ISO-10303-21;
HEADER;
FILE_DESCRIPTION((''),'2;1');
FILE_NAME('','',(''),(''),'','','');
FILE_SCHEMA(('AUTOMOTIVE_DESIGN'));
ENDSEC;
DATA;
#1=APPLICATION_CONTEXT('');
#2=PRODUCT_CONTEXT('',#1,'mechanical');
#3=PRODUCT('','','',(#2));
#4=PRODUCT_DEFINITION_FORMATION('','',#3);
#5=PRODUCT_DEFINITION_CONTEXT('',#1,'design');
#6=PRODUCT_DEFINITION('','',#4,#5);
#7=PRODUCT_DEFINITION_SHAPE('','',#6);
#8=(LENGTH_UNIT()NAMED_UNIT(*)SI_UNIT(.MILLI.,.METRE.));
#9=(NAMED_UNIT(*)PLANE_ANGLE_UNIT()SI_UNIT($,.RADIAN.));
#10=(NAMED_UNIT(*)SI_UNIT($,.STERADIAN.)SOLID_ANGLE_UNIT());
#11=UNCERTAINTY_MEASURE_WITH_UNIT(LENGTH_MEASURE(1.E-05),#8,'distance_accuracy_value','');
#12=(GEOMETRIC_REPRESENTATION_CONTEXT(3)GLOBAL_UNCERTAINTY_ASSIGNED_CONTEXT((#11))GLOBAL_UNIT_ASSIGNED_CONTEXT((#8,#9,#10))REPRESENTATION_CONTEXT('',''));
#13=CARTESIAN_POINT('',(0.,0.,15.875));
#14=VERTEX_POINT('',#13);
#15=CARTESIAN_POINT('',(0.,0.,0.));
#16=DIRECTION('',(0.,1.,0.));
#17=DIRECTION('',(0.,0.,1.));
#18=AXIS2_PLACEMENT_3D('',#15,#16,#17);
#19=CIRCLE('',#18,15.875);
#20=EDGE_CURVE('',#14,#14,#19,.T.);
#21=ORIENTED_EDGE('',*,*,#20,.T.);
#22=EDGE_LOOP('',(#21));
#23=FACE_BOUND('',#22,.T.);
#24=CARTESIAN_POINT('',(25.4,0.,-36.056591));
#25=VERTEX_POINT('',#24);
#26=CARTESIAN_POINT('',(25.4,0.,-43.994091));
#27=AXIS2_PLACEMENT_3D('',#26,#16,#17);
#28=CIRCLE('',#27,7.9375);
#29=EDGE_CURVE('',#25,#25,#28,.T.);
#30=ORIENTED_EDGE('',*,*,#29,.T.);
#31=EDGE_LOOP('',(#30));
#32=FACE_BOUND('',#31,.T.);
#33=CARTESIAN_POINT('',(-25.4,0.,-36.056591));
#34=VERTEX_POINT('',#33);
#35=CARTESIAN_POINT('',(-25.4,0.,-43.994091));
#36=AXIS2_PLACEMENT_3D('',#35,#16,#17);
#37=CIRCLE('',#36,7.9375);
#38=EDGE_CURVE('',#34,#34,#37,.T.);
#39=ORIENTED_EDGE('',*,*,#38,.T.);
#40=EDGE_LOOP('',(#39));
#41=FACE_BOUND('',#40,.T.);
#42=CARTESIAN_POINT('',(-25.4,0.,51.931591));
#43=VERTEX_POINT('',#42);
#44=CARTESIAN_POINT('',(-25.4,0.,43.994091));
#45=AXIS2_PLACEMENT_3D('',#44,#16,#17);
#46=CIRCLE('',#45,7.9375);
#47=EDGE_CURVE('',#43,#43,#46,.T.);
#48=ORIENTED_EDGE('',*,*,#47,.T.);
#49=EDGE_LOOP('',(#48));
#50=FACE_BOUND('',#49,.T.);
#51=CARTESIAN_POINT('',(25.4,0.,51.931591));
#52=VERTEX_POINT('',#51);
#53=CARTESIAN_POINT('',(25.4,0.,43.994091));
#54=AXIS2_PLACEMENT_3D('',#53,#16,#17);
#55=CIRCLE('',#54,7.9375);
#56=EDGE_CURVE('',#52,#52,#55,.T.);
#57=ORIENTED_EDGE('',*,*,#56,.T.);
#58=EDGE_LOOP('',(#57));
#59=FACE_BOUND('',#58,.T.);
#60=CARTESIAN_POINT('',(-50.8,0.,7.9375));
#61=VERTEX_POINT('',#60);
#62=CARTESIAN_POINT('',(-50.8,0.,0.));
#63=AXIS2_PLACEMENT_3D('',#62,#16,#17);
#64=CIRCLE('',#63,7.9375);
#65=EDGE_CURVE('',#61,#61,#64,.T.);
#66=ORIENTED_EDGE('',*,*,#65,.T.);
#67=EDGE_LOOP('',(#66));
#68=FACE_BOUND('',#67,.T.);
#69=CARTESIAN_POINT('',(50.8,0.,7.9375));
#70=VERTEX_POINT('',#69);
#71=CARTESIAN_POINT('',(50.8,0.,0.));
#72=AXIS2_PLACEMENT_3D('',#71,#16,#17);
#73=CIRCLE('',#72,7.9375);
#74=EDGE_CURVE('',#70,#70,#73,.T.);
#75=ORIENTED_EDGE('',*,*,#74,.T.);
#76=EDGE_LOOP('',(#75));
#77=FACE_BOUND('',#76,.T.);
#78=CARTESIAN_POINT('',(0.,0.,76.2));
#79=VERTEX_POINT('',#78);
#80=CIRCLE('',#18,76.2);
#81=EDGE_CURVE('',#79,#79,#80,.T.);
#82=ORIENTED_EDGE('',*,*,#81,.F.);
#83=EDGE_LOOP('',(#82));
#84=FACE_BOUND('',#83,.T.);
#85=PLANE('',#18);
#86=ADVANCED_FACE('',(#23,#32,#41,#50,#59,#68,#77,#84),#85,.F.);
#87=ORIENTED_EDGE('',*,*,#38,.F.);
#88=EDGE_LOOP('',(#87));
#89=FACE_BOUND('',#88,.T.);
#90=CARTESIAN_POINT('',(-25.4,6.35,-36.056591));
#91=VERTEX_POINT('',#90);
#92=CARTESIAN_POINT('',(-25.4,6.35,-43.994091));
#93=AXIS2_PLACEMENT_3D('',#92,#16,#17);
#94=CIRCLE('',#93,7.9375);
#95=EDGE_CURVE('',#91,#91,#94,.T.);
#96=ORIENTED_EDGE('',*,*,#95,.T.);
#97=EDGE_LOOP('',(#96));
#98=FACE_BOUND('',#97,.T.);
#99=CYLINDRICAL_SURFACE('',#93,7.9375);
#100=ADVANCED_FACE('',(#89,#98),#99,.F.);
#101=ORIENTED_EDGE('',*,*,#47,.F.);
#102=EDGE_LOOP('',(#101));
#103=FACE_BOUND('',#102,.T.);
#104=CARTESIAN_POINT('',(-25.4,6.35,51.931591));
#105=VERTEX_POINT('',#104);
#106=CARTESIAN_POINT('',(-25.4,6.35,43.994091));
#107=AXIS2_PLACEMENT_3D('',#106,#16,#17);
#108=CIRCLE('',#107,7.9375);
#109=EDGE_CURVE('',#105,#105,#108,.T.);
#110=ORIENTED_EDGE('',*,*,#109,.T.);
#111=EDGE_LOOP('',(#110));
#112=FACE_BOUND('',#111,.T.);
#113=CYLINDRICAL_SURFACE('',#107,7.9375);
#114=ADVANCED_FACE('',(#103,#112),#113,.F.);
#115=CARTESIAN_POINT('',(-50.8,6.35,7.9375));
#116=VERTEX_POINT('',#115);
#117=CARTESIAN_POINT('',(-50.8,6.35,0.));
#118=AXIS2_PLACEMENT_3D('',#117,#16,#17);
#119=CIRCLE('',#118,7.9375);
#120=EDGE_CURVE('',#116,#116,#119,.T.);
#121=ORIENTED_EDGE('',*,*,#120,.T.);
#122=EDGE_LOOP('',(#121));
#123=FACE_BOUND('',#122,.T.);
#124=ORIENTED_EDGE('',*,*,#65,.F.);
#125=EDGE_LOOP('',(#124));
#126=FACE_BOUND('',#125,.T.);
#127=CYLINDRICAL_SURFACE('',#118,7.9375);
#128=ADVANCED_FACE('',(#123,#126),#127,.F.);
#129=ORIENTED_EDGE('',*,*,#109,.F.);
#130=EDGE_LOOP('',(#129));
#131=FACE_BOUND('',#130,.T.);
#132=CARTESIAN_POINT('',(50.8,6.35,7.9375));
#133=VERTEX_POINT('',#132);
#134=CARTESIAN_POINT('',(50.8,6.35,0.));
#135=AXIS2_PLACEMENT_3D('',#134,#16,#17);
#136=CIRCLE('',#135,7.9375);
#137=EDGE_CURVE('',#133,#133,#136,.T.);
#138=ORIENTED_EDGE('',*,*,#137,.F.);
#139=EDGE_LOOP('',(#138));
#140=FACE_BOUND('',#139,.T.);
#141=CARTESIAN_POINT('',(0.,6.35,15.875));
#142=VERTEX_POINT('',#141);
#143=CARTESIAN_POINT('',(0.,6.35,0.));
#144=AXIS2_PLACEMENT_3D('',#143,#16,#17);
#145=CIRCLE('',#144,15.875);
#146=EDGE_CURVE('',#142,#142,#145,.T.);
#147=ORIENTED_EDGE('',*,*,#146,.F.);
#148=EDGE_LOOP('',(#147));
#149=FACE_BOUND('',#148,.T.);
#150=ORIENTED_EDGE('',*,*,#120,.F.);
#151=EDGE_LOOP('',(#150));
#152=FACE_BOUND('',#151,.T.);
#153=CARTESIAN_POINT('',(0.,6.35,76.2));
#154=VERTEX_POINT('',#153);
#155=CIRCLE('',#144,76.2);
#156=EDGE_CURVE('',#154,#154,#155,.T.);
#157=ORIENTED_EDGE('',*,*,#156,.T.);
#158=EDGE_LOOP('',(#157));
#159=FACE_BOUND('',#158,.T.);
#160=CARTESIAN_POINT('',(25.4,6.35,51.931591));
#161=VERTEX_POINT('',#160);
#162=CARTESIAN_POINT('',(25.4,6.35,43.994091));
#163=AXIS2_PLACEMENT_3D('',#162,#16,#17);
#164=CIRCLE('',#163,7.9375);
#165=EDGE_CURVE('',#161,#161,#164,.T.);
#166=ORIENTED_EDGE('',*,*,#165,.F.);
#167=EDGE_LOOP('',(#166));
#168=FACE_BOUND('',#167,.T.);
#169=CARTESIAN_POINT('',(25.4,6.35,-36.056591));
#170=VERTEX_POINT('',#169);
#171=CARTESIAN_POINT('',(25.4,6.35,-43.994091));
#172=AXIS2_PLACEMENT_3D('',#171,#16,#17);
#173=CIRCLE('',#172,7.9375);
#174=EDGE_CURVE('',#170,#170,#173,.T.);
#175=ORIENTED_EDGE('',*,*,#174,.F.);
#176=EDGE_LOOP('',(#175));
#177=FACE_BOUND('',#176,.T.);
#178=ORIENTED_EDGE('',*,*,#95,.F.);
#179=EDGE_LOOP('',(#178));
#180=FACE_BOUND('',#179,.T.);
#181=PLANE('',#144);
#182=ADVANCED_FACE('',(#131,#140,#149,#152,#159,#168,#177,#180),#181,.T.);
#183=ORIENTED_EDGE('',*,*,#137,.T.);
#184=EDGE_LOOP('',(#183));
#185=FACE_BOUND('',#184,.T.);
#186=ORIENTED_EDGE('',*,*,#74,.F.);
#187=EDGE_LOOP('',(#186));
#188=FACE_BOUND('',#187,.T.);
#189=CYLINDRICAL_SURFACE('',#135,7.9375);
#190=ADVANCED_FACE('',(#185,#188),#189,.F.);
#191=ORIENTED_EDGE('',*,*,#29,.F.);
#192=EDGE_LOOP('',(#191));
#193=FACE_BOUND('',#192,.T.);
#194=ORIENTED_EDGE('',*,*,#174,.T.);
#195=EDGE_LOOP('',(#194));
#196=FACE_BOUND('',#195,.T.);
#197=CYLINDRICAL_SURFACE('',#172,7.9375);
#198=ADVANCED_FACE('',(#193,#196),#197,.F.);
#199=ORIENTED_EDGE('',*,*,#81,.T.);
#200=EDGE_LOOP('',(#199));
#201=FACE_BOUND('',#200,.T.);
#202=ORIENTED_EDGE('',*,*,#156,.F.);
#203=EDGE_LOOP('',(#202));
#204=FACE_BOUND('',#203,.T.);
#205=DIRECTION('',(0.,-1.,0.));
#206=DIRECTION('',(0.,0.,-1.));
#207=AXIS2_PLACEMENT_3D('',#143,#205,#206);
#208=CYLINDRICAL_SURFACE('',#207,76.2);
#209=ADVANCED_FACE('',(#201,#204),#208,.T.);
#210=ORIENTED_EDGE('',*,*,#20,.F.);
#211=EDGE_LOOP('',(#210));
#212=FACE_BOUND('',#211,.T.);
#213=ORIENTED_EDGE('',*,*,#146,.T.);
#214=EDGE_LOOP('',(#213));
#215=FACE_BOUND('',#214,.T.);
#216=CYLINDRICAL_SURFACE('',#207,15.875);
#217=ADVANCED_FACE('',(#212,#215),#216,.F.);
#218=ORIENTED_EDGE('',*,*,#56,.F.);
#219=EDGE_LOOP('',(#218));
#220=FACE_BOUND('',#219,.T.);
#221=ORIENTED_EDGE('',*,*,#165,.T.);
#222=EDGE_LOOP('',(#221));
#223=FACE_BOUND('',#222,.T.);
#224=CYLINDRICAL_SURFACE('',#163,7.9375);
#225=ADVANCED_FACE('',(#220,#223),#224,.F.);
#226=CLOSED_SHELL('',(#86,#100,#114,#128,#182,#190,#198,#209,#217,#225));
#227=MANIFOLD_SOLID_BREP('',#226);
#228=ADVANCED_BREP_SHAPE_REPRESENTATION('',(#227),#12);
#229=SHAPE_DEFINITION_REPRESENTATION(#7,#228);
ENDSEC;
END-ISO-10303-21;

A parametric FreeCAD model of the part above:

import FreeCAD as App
import Part
import Sketcher

V = App.Vector
Q = App.Units.Quantity

doc = App.newDocument("Part")
body = doc.addObject("PartDesign::Body", "Body")

# Sketch on XZ plane
sketch1 = body.newObject("Sketcher::SketchObject", "Sketch")
sketch1.AttachmentSupport = (doc.getObject("XZ_Plane"), [""])
sketch1.MapMode = "FlatFace"
sketch1.addGeometry([
    Part.Circle(V(0, 0, 0), V(0, 0, 1), 76.2),
    Part.Circle(V(0, 0, 0), V(0, 0, 1), 15.875),
], False)
sketch1.addConstraint([
    Sketcher.Constraint("Coincident", 0, 3, -1, 1),
    Sketcher.Constraint("Coincident", 1, 3, -1, 1),
    Sketcher.Constraint("Diameter", 0, Q("6 in")),
    Sketcher.Constraint("Diameter", 1, Q("1.25 in")),
])
pad1 = body.newObject("PartDesign::Pad", "Pad")
pad1.Profile = sketch1
pad1.Length = Q("0.25 in")
pad1.Reversed = True

# Sketch on XZ plane
sketch2 = body.newObject("Sketcher::SketchObject", "Sketch001")
sketch2.AttachmentSupport = (doc.getObject("XZ_Plane"), [""])
sketch2.MapMode = "FlatFace"
sketch2.AttachmentOffset = App.Placement(V(0, 0, -0.25 * 25.4), App.Rotation())
sketch2.addGeometry(Part.Circle(V(-50.8, 0, 0), V(0, 0, 1), 7.9375), False)
sketch2.addConstraint([
    Sketcher.Constraint("PointOnObject", 0, 3, -1),
    Sketcher.Constraint("Diameter", 0, Q("0.625 in")),
    Sketcher.Constraint("DistanceX", 0, 3, -1, 1, Q("2 in")),
])
doc.recompute()
hole = body.newObject("PartDesign::Hole", "Hole")
hole.Profile = sketch2
hole.ThreadType = "None"
hole.Diameter = Q("0.625 in")
hole.DepthType = "ThroughAll"
hole.Reversed = True
doc.recompute()

polarpattern = body.newObject("PartDesign::PolarPattern", "PolarPattern")
polarpattern.Originals = [hole]
polarpattern.Axis = (doc.getObject("Y_Axis"), [""])
polarpattern.Angle = 360
polarpattern.Occurrences = 6
body.Tip = polarpattern

doc.recompute()
